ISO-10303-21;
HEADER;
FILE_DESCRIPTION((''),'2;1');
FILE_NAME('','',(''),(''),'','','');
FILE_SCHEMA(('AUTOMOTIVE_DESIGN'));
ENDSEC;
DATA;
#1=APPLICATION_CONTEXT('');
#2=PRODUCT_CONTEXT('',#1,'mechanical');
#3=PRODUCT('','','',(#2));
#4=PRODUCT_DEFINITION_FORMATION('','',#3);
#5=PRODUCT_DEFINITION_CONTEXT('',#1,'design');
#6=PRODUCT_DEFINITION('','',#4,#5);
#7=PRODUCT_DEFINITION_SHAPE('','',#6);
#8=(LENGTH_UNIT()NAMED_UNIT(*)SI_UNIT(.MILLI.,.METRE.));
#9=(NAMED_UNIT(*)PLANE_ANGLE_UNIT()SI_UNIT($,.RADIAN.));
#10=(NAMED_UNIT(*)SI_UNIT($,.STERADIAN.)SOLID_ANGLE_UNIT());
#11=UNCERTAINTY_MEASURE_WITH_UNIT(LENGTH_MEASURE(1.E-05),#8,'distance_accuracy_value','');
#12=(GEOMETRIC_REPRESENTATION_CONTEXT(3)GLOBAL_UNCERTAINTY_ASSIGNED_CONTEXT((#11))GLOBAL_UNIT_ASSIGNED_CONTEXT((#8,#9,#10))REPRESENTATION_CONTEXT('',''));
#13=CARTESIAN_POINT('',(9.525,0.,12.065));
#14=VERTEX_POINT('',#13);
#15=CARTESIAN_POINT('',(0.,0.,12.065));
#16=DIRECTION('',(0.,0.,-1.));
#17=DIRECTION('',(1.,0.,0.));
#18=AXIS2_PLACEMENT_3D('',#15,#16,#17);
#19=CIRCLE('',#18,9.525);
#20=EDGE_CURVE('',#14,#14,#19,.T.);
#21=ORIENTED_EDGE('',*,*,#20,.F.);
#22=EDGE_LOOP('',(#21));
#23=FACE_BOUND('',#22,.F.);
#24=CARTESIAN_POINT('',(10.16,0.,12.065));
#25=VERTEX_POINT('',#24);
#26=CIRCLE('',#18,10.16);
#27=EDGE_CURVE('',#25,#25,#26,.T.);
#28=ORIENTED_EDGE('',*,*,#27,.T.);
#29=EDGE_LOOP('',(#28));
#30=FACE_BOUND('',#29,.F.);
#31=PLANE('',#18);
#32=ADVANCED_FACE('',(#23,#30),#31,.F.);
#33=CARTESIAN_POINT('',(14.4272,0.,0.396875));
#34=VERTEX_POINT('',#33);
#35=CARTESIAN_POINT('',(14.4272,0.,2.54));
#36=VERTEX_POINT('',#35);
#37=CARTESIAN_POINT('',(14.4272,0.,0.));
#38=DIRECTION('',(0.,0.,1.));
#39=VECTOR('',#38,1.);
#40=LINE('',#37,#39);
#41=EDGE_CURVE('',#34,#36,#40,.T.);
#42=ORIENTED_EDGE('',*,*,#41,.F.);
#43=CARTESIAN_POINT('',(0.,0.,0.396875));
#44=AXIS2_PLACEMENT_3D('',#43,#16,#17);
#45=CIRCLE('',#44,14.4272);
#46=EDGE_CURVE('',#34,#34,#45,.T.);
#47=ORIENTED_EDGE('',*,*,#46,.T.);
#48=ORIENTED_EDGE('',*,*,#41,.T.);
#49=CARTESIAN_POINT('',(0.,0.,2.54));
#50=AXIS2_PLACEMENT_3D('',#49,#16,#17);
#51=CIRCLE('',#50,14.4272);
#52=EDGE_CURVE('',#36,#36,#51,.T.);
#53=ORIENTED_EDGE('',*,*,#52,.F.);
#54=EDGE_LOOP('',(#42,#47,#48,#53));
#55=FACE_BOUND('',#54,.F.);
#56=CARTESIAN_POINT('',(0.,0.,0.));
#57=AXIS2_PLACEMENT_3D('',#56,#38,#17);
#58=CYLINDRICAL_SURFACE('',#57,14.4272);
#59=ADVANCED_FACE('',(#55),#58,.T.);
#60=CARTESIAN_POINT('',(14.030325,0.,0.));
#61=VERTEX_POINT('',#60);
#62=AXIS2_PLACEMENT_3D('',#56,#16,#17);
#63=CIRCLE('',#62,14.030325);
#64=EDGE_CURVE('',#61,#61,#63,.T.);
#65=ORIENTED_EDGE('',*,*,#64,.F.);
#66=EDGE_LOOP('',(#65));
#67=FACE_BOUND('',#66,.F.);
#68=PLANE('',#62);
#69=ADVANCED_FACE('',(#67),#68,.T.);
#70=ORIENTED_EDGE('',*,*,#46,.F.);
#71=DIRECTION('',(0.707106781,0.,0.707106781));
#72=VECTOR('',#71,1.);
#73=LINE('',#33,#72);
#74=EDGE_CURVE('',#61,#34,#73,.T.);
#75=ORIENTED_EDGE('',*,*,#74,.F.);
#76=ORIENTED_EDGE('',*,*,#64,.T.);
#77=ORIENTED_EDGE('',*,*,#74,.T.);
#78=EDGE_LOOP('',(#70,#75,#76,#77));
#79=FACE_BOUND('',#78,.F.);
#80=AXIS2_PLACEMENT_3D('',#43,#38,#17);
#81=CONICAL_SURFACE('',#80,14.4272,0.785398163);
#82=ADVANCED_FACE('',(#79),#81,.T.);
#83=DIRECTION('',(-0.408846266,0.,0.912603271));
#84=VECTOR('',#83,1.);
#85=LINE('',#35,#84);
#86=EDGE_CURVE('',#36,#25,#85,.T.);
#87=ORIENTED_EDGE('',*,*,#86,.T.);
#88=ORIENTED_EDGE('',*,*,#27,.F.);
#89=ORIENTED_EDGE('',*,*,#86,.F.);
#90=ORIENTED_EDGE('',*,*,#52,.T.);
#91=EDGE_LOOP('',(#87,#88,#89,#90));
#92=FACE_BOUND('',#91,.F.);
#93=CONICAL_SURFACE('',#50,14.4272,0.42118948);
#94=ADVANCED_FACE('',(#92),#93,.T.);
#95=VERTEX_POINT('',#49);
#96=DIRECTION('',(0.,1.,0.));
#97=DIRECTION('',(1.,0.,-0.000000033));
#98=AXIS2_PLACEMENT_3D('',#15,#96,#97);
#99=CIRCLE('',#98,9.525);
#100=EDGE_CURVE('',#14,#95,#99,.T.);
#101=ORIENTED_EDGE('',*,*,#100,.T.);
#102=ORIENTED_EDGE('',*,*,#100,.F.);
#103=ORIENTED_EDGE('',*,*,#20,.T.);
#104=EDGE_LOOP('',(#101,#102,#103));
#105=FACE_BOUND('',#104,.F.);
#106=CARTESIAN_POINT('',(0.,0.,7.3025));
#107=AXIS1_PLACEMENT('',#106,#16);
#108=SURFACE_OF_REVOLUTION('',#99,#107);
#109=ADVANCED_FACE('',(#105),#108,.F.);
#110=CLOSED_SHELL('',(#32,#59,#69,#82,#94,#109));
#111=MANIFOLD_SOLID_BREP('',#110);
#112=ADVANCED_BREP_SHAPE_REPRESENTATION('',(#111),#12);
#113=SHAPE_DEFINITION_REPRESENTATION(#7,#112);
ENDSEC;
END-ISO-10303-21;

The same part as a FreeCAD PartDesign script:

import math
import FreeCAD as App
import Part
import Sketcher
from FreeCAD import Vector
Q = App.Units.Quantity


def edges_at(feature, points):
    """Names of the edges that pass closest to the given points."""
    edges = feature.Shape.Edges
    near = lambda p: min(range(len(edges)), key=lambda i: edges[i].distToShape(Part.Vertex(*p))[0])
    return sorted({f"Edge{near(p) + 1}" for p in points})

doc = App.newDocument("Part")
body = doc.addObject("PartDesign::Body", "Body")

# Sketch on XZ plane
sketch1 = body.newObject("Sketcher::SketchObject", "Sketch")
sketch1.AttachmentSupport = (doc.getObject("XZ_Plane"), [""])
sketch1.MapMode = "FlatFace"
sketch1.addGeometry([
    Part.LineSegment(Vector(0, 2.5, 0), Vector(0, 0, 0)),  # 0
    Part.LineSegment(Vector(0, 0, 0), Vector(14.4, 0, 0)),  # 1
    Part.LineSegment(Vector(14.4, 0, 0), Vector(14.4, 2.5, 0)),  # 2
    Part.LineSegment(Vector(14.4, 2.5, 0), Vector(10.2, 12.1, 0)),  # 3
    Part.LineSegment(Vector(10.2, 12.1, 0), Vector(9.5, 12.1, 0)),  # 4
    Part.ArcOfCircle(Part.Circle(Vector(0, 12.1, 0), Vector(0, 0, 1), 9.5), math.radians(-90), math.radians(0)),  # 5
], False)
sketch1.addConstraint([
    Sketcher.Constraint("Coincident", 0, 2, 1, 1),
    Sketcher.Constraint("Coincident", 1, 2, 2, 1),
    Sketcher.Constraint("Coincident", 2, 2, 3, 1),
    Sketcher.Constraint("Coincident", 3, 2, 4, 1),
    Sketcher.Constraint("Coincident", 4, 2, 5, 2),
    Sketcher.Constraint("Coincident", 5, 1, 0, 1),
    Sketcher.Constraint("Vertical", 0),
    Sketcher.Constraint("Horizontal", 1),
    Sketcher.Constraint("Vertical", 2),
    Sketcher.Constraint("Horizontal", 4),
    Sketcher.Constraint("Coincident", 0, 2, -1, 1),
    Sketcher.Constraint("PointOnObject", 5, 3, -2),
    Sketcher.Constraint("Horizontal", 5, 3, 3, 2),
    Sketcher.Constraint("Horizontal", 2, 2, 5, 1),
    Sketcher.Constraint("DistanceY", 0, 2, 0, 1, Q("0.1 in")),
    Sketcher.Constraint("Radius", 5, Q("0.375 in")),
    Sketcher.Constraint("DistanceX", -1, 1, 3, 2, Q("0.4 in")),
    Sketcher.Constraint("DistanceX", 1, 1, 1, 2, Q("0.568 in")),
])
revolution = body.newObject("PartDesign::Revolution", "Revolution")
revolution.Profile = sketch1
revolution.ReferenceAxis = (sketch1, ["V_Axis"])
revolution.Angle = 360
doc.recompute()

chamfer = body.newObject("PartDesign::Chamfer", "Chamfer")
chamfer.Base = (revolution, edges_at(revolution, [(-14.427, 0, 0)]))
chamfer.Size = Q("0.015625 in")

doc.recompute()
